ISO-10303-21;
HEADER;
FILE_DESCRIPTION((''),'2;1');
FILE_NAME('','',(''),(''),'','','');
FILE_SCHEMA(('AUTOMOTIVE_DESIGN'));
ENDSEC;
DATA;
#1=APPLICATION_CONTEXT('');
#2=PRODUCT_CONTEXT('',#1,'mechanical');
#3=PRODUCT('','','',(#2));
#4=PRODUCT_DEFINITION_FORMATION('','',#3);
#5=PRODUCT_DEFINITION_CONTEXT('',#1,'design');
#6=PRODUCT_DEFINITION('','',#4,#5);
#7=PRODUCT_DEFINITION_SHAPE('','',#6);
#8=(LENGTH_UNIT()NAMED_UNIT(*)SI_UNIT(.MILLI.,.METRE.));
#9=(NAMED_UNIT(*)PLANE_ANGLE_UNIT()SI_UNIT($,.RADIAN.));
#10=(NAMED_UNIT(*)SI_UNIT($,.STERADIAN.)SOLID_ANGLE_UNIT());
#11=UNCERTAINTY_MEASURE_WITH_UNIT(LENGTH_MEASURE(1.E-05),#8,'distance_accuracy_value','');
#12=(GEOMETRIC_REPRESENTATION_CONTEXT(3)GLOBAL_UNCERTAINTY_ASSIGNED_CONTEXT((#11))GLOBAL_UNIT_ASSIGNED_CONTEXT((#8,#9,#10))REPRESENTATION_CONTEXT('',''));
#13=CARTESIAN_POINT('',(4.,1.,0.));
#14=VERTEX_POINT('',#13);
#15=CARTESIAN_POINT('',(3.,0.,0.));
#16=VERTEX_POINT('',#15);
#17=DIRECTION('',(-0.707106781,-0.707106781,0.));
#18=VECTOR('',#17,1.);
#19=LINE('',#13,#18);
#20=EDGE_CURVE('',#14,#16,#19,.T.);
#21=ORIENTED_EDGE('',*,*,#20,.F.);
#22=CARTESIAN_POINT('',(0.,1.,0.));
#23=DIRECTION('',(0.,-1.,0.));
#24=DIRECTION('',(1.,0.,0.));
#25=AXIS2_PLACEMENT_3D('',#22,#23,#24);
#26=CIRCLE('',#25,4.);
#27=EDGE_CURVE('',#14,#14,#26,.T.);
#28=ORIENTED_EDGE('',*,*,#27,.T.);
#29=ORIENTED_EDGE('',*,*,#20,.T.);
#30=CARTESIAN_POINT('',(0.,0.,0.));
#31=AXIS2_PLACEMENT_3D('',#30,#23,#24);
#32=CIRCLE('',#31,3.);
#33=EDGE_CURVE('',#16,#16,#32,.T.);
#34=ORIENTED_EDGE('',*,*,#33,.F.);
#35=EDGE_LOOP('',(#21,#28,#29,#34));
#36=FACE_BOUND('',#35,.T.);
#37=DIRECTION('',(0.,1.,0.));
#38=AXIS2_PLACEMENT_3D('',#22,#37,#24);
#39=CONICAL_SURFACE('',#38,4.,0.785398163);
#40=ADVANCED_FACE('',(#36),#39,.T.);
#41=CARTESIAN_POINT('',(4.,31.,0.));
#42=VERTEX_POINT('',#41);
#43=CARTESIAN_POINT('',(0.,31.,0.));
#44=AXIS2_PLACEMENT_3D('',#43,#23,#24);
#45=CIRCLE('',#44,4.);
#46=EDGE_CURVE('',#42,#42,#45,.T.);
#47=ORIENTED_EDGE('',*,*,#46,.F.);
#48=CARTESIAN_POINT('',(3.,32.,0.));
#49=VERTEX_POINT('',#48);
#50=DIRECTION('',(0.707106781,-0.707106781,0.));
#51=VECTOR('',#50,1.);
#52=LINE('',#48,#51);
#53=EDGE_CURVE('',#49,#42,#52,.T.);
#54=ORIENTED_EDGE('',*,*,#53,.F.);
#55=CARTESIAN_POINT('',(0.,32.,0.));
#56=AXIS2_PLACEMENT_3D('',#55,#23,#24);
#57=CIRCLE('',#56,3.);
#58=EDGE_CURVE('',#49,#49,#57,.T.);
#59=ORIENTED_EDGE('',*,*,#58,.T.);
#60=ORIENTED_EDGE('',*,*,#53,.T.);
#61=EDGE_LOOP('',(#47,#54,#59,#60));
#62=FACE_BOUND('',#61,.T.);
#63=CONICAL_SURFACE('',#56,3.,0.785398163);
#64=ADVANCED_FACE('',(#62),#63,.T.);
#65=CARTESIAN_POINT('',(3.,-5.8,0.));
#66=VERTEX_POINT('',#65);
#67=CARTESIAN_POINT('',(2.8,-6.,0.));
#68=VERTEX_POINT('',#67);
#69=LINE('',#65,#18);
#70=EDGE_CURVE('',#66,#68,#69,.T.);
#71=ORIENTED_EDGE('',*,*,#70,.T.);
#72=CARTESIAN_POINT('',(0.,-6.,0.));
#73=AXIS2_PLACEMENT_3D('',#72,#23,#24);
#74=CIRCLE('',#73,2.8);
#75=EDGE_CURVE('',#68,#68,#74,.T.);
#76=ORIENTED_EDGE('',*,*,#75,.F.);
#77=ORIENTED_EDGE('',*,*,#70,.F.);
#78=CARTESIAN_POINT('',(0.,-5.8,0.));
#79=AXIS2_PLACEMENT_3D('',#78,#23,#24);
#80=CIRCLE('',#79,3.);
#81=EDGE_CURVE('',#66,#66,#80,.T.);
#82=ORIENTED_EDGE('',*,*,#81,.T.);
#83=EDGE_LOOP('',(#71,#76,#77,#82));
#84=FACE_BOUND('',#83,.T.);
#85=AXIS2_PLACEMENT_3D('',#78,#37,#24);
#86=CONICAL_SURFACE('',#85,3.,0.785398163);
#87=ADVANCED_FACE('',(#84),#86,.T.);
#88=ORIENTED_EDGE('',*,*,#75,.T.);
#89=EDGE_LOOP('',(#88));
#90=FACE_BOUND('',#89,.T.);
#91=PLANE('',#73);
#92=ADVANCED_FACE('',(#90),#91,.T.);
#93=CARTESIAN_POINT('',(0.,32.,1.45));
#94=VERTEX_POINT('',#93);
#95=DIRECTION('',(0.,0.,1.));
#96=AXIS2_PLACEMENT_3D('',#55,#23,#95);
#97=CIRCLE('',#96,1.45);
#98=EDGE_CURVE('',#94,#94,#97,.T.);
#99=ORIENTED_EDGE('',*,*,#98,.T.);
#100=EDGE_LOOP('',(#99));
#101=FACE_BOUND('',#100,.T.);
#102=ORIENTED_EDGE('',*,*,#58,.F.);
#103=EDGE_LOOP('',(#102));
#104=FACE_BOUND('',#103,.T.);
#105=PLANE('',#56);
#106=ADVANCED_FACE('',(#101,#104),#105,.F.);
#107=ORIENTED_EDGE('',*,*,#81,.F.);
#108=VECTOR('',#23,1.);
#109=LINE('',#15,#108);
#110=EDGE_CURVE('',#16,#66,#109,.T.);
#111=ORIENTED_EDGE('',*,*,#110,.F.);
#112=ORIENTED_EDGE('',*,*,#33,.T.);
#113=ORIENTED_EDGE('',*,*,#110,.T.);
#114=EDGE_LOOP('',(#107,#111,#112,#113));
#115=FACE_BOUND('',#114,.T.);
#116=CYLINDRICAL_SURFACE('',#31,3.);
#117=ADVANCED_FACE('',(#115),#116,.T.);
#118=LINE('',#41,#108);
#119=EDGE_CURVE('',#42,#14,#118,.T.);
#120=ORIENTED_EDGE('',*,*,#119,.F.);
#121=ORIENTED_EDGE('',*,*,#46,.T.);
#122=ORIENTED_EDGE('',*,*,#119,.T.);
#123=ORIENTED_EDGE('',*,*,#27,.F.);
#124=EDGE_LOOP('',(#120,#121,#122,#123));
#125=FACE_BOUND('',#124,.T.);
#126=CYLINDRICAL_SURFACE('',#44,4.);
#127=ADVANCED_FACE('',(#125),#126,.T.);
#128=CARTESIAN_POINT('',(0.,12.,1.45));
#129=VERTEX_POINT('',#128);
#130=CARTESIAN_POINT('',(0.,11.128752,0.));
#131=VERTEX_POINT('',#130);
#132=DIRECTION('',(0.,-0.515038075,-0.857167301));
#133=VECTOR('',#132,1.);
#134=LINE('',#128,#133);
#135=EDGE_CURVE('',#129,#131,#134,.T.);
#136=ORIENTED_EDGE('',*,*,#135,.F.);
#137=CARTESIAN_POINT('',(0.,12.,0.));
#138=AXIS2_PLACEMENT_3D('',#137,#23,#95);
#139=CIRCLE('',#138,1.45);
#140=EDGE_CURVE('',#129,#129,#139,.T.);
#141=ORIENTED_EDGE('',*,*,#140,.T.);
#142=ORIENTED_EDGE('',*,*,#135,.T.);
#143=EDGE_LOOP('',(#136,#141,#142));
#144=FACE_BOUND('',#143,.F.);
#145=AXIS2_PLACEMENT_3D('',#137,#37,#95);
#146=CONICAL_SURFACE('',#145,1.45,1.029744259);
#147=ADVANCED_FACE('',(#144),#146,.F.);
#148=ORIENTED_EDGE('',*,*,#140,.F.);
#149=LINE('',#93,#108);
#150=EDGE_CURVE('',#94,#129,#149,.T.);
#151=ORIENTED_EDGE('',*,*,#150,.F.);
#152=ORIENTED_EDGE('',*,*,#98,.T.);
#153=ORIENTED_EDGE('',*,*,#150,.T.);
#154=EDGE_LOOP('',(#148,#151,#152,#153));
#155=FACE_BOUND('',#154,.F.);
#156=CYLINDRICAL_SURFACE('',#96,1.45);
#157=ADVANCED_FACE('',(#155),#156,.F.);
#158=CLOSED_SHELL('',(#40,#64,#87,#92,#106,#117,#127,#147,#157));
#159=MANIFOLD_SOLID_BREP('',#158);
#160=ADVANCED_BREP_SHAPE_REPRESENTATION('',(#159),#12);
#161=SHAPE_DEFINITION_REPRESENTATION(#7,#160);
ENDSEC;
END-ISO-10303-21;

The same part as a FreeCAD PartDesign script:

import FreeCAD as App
import Part
import Sketcher


def add_polygon(sketch, points):
    """Adds a closed chain of lines whose ends are joined by coincident constraints."""
    first, n = sketch.GeometryCount, len(points)
    for a, b in zip(points, points[1:] + points[:1]):
        sketch.addGeometry(Part.LineSegment(App.Vector(*a, 0), App.Vector(*b, 0)), False)
    for i in range(n):
        sketch.addConstraint(Sketcher.Constraint("Coincident", first + i, 2, first + (i + 1) % n, 1))

doc = App.newDocument("Part")
body = doc.addObject("PartDesign::Body", "Body")

sketch1 = body.newObject("Sketcher::SketchObject", "Sketch")
sketch1.AttachmentSupport = (doc.getObject("XY_Plane"), [""])
sketch1.MapMode = "FlatFace"
add_polygon(sketch1, [(0, 32), (0, -6), (2.8, -6), (3, -5.8), (3, 0), (4, 1), (4, 31), (3, 32)])
sketch1.addConstraint(Sketcher.Constraint("Vertical", 0))
sketch1.addConstraint(Sketcher.Constraint("Horizontal", 1))
sketch1.addConstraint(Sketcher.Constraint("Vertical", 3))
sketch1.addConstraint(Sketcher.Constraint("Vertical", 5))
sketch1.addConstraint(Sketcher.Constraint("Horizontal", 7))
sketch1.addConstraint(Sketcher.Constraint("PointOnObject", 0, 2, -2))
sketch1.addConstraint(Sketcher.Constraint("PointOnObject", 3, 2, -1))
sketch1.addConstraint(Sketcher.Constraint("Parallel", 2, 4))
sketch1.addConstraint(Sketcher.Constraint("Perpendicular", 4, 6))
sketch1.addConstraint(Sketcher.Constraint("Vertical", 3, 2, 6, 2))
sketch1.addConstraint(Sketcher.Constraint("Equal", 4, 6))
sketch1.addConstraint(Sketcher.Constraint("DistanceX", 7, 2, 7, 1, 3.0))
sketch1.addConstraint(Sketcher.Constraint("DistanceY", 0, 2, 0, 1, 38.0))
sketch1.addConstraint(Sketcher.Constraint("DistanceY", 5, 1, 5, 2, 30.0))
sketch1.addConstraint(Sketcher.Constraint("DistanceX", 1, 1, 1, 2, 2.8))
sketch1.addConstraint(Sketcher.Constraint("DistanceY", 3, 1, 3, 2, 5.8))
revolution = body.newObject("PartDesign::Revolution", "Revolution")
revolution.Profile = sketch1
revolution.ReferenceAxis = (sketch1, ["V_Axis"])
revolution.Angle = 360

sketch2 = body.newObject("Sketcher::SketchObject", "Sketch001")
sketch2.AttachmentSupport = (doc.getObject("XZ_Plane"), [""])
sketch2.MapMode = "FlatFace"
sketch2.AttachmentOffset = App.Placement(App.Vector(0, 0, -32), App.Rotation())
sketch2.addGeometry(Part.Circle(App.Vector(0, 0, 0), App.Vector(0, 0, 1), 1.4), False)
sketch2.addConstraint(Sketcher.Constraint("Coincident", 0, 3, -1, 1))
sketch2.addConstraint(Sketcher.Constraint("Diameter", 0, 2.9))
doc.recompute()
hole = body.newObject("PartDesign::Hole", "Hole")
hole.Profile = sketch2
hole.ThreadType = "None"
hole.Diameter = 2.9
hole.DepthType = "Dimension"
hole.Depth = 20
hole.DrillPoint = "Angled"
hole.DrillPointAngle = 118
hole.Reversed = True

doc.recompute()
